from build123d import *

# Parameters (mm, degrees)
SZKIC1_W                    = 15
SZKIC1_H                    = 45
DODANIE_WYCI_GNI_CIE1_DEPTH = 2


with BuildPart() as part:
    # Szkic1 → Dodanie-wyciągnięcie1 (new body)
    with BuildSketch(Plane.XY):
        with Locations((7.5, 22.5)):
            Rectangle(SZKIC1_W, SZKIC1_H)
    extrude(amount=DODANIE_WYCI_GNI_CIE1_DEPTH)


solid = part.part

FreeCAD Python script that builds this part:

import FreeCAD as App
import Part
import Sketcher
from FreeCAD import Vector


def add_polygon(sketch, points):
    """Adds a closed chain of lines whose ends are joined by coincident constraints."""
    first, n = sketch.GeometryCount, len(points)
    for a, b in zip(points, points[1:] + points[:1]):
        sketch.addGeometry(Part.LineSegment(App.Vector(*a, 0), App.Vector(*b, 0)), False)
    for i in range(n):
        sketch.addConstraint(Sketcher.Constraint("Coincident", first + i, 2, first + (i + 1) % n, 1))

doc = App.newDocument("Part")
params = doc.addObject("Spreadsheet::Sheet", "Params")
for row, (alias, value) in enumerate([
    ("sketch1_width", "15 mm"),
    ("sketch1_height", "45 mm"),
    ("pad1_length", "2 mm"),
], start=1):
    params.set(f"A{row}", alias)
    params.set(f"B{row}", "=" + value)
    params.setAlias(f"B{row}", alias)

body = doc.addObject("PartDesign::Body", "Body")

sketch1 = doc.addObject("Sketcher::SketchObject", "Sketch")
body.addObject(sketch1)
sketch1.AttachmentSupport = (doc.XY_Plane, [""])
sketch1.MapMode = "FlatFace"
add_polygon(sketch1, [(0, 45), (0, 0), (15, 0), (15, 45)])
sketch1.addConstraint([
    Sketcher.Constraint("Vertical", 0),
    Sketcher.Constraint("Horizontal", 1),
    Sketcher.Constraint("Vertical", 2),
    Sketcher.Constraint("Horizontal", 3),
    Sketcher.Constraint("Coincident", 0, 2, -1, 1),
    Sketcher.Constraint("DistanceX", 1, 1, 1, 2, 15.0),
    Sketcher.Constraint("DistanceY", 0, 2, 0, 1, 45.0),
])
sketch1.setExpression("Constraints[9]", "Params.sketch1_width")
sketch1.setExpression("Constraints[10]", "Params.sketch1_height")
pad1 = doc.addObject("PartDesign::Pad", "Pad")
body.addObject(pad1)
pad1.Profile = sketch1
pad1.setExpression("Length", "Params.pad1_length")

doc.recompute()
